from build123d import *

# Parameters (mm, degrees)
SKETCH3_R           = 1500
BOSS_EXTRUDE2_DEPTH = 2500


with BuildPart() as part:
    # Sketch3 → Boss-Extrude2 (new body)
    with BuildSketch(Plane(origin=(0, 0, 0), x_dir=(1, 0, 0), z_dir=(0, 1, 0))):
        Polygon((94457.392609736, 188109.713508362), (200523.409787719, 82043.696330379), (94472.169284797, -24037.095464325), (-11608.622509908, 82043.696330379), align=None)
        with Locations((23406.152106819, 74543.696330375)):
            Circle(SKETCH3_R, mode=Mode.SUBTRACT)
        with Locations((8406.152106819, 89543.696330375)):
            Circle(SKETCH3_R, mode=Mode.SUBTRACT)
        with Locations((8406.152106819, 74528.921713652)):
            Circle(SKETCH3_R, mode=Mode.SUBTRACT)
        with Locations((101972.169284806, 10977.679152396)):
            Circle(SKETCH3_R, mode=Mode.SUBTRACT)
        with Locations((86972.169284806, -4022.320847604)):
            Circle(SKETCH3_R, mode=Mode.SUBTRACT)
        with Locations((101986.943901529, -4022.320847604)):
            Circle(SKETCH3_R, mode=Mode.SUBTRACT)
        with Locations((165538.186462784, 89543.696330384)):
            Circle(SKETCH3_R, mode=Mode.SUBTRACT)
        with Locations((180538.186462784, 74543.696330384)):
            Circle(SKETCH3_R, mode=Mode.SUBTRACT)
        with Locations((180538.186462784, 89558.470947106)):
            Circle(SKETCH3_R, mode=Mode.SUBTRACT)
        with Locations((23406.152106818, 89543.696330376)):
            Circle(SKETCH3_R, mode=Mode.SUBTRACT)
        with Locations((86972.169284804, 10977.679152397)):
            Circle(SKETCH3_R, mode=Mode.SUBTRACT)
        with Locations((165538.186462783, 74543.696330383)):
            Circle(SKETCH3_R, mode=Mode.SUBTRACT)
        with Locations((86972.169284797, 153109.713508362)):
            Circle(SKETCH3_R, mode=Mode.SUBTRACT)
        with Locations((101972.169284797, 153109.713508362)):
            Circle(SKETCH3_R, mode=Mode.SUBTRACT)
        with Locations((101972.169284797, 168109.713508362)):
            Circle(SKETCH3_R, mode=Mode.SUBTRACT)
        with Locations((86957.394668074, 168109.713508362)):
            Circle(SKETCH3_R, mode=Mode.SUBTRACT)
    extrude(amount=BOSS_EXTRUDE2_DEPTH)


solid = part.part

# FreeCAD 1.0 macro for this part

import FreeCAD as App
import Part
import Sketcher

V = App.Vector

doc = App.newDocument("Part")
body = doc.addObject("PartDesign::Body", "Body")

sketch1 = doc.addObject("Sketcher::SketchObject", "Sketch")
body.addObject(sketch1)
sketch1.AttachmentSupport = (doc.XZ_Plane, [""])
sketch1.MapMode = "FlatFace"
sketch1.addGeometry(Part.LineSegment(V(200523.409788, -82043.69633, 0), V(94457.39261, -188109.713508, 0)), False)
sketch1.addGeometry(Part.LineSegment(V(94457.39261, -188109.713508, 0), V(-11608.62251, -82043.69633, 0)), False)
sketch1.addGeometry(Part.LineSegment(V(-11608.62251, -82043.69633, 0), V(94472.169285, 24037.095464, 0)), False)
sketch1.addGeometry(Part.LineSegment(V(94472.169285, 24037.095464, 0), V(200523.409788, -82043.69633, 0)), False)
sketch1.addGeometry(Part.Circle(V(101986.943902, 4022.320848, 0), V(0, 0, 1), 1500), False)
sketch1.addGeometry(Part.Circle(V(101972.169285, -10977.679152, 0), V(0, 0, 1), 1500), False)
sketch1.addGeometry(Part.Circle(V(180538.186463, -74543.69633, 0), V(0, 0, 1), 1500), False)
sketch1.addGeometry(Part.Circle(V(165538.186463, -74543.69633, 0), V(0, 0, 1), 1500), False)
sketch1.addGeometry(Part.Circle(V(86972.169285, 4022.320848, 0), V(0, 0, 1), 1500), False)
sketch1.addGeometry(Part.Circle(V(86972.169285, -10977.679152, 0), V(0, 0, 1), 1500), False)
sketch1.addGeometry(Part.Circle(V(23406.152107, -74543.69633, 0), V(0, 0, 1), 1500), False)
sketch1.addGeometry(Part.Circle(V(8406.152107, -74528.921714, 0), V(0, 0, 1), 1500), False)
sketch1.addGeometry(Part.Circle(V(180538.186463, -89558.470947, 0), V(0, 0, 1), 1500), False)
sketch1.addGeometry(Part.Circle(V(165538.186463, -89543.69633, 0), V(0, 0, 1), 1500), False)
sketch1.addGeometry(Part.Circle(V(101972.169285, -153109.713508, 0), V(0, 0, 1), 1500), False)
sketch1.addGeometry(Part.Circle(V(101972.169285, -168109.713508, 0), V(0, 0, 1), 1500), False)
sketch1.addGeometry(Part.Circle(V(23406.152107, -89543.69633, 0), V(0, 0, 1), 1500), False)
sketch1.addGeometry(Part.Circle(V(8406.152107, -89543.69633, 0), V(0, 0, 1), 1500), False)
sketch1.addGeometry(Part.Circle(V(86972.169285, -153109.713508, 0), V(0, 0, 1), 1500), False)
sketch1.addGeometry(Part.Circle(V(86957.394668, -168109.713508, 0), V(0, 0, 1), 1500), False)
sketch1.addConstraint(Sketcher.Constraint("Coincident", 0, 2, 1, 1))
sketch1.addConstraint(Sketcher.Constraint("Coincident", 1, 2, 2, 1))
sketch1.addConstraint(Sketcher.Constraint("Coincident", 2, 2, 3, 1))
sketch1.addConstraint(Sketcher.Constraint("Coincident", 3, 2, 0, 1))
sketch1.addConstraint(Sketcher.Constraint("Equal", 4, 5))
sketch1.addConstraint(Sketcher.Constraint("Equal", 5, 6))
sketch1.addConstraint(Sketcher.Constraint("Equal", 6, 7))
sketch1.addConstraint(Sketcher.Constraint("Equal", 7, 8))
sketch1.addConstraint(Sketcher.Constraint("Equal", 8, 9))
sketch1.addConstraint(Sketcher.Constraint("Equal", 9, 10))
sketch1.addConstraint(Sketcher.Constraint("Equal", 10, 11))
sketch1.addConstraint(Sketcher.Constraint("Equal", 11, 12))
sketch1.addConstraint(Sketcher.Constraint("Equal", 12, 13))
sketch1.addConstraint(Sketcher.Constraint("Equal", 13, 14))
sketch1.addConstraint(Sketcher.Constraint("Equal", 14, 15))
sketch1.addConstraint(Sketcher.Constraint("Equal", 15, 16))
sketch1.addConstraint(Sketcher.Constraint("Equal", 16, 17))
sketch1.addConstraint(Sketcher.Constraint("Equal", 17, 18))
sketch1.addConstraint(Sketcher.Constraint("Equal", 18, 19))
sketch1.addConstraint(Sketcher.Constraint("Perpendicular", 0, 1))
sketch1.addConstraint(Sketcher.Constraint("Perpendicular", 1, 2))
sketch1.addConstraint(Sketcher.Constraint("Horizontal", 6, 3, 7, 3))
sketch1.addConstraint(Sketcher.Constraint("Horizontal", 4, 3, 8, 3))
sketch1.addConstraint(Sketcher.Constraint("Horizontal", 5, 3, 9, 3))
sketch1.addConstraint(Sketcher.Constraint("Horizontal", 7, 3, 10, 3))
sketch1.addConstraint(Sketcher.Constraint("Horizontal", 13, 3, 16, 3))
sketch1.addConstraint(Sketcher.Constraint("Horizontal", 16, 3, 17, 3))
sketch1.addConstraint(Sketcher.Constraint("Horizontal", 14, 3, 18, 3))
sketch1.addConstraint(Sketcher.Constraint("Horizontal", 15, 3, 19, 3))
sketch1.addConstraint(Sketcher.Constraint("Horizontal", 1, 2, 3, 2))
sketch1.addConstraint(Sketcher.Constraint("Vertical", 8, 3, 9, 3))
sketch1.addConstraint(Sketcher.Constraint("Vertical", 6, 3, 12, 3))
sketch1.addConstraint(Sketcher.Constraint("Vertical", 7, 3, 13, 3))
sketch1.addConstraint(Sketcher.Constraint("Vertical", 5, 3, 14, 3))
sketch1.addConstraint(Sketcher.Constraint("Vertical", 14, 3, 15, 3))
sketch1.addConstraint(Sketcher.Constraint("Vertical", 10, 3, 16, 3))
sketch1.addConstraint(Sketcher.Constraint("Vertical", 11, 3, 17, 3))
sketch1.addConstraint(Sketcher.Constraint("Vertical", 9, 3, 18, 3))
sketch1.addConstraint(Sketcher.Constraint("Equal", 0, 3))
sketch1.addConstraint(Sketcher.Constraint("Diameter", 4, 3000.0))
sketch1.addConstraint(Sketcher.Constraint("Distance", 0, 150000.0))
sketch1.addConstraint(Sketcher.Constraint("DistanceY", 5, 3, 4, 3, 15000.0))
sketch1.addConstraint(Sketcher.Constraint("DistanceX", 7, 3, 6, 3, 15000.0))
sketch1.addConstraint(Sketcher.Constraint("DistanceX", 8, 3, 5, 3, 15000.0))
sketch1.addConstraint(Sketcher.Constraint("DistanceX", 11, 3, 10, 3, 15000.0))
sketch1.addConstraint(Sketcher.Constraint("DistanceY", 13, 3, 7, 3, 15000.0))
sketch1.addConstraint(Sketcher.Constraint("DistanceY", 15, 3, 14, 3, 15000.0))
sketch1.addConstraint(Sketcher.Constraint("DistanceY", 0, 2, 19, 3, 20000.0))
sketch1.addConstraint(Sketcher.Constraint("DistanceY", 17, 3, 1, 2, 7500.0))
sketch1.addConstraint(Sketcher.Constraint("DistanceX", 8, 3, 2, 2, 7500.0))
sketch1.addConstraint(Sketcher.Constraint("DistanceX", -1, 1, 4, 3, 101986.943902))
sketch1.addConstraint(Sketcher.Constraint("DistanceY", 6, 3, -1, 1, 74543.69633))
sketch1.addConstraint(Sketcher.Constraint("DistanceX", -1, 1, 19, 3, 86957.394668))
sketch1.addConstraint(Sketcher.Constraint("DistanceX", -1, 1, 0, 2, 94457.39261))
sketch1.addConstraint(Sketcher.Constraint("DistanceX", 4, 3, 6, 3, 78551.242561))
sketch1.addConstraint(Sketcher.Constraint("DistanceY", 11, 3, 9, 3, 63551.242561))
sketch1.addConstraint(Sketcher.Constraint("DistanceY", 14, 3, 12, 3, 63551.242561))
sketch1.addConstraint(Sketcher.Constraint("DistanceX", 16, 3, 19, 3, 63551.242561))
sketch1.addConstraint(Sketcher.Constraint("Distance", 2, 150020.894463))
sketch1.addConstraint(Sketcher.Constraint("DistanceY", -1, 1, 4, 3, 4022.320848))
pad1 = doc.addObject("PartDesign::Pad", "Pad")
body.addObject(pad1)
pad1.Profile = sketch1
pad1.Length = 2500
pad1.Reversed = True

doc.recompute()
